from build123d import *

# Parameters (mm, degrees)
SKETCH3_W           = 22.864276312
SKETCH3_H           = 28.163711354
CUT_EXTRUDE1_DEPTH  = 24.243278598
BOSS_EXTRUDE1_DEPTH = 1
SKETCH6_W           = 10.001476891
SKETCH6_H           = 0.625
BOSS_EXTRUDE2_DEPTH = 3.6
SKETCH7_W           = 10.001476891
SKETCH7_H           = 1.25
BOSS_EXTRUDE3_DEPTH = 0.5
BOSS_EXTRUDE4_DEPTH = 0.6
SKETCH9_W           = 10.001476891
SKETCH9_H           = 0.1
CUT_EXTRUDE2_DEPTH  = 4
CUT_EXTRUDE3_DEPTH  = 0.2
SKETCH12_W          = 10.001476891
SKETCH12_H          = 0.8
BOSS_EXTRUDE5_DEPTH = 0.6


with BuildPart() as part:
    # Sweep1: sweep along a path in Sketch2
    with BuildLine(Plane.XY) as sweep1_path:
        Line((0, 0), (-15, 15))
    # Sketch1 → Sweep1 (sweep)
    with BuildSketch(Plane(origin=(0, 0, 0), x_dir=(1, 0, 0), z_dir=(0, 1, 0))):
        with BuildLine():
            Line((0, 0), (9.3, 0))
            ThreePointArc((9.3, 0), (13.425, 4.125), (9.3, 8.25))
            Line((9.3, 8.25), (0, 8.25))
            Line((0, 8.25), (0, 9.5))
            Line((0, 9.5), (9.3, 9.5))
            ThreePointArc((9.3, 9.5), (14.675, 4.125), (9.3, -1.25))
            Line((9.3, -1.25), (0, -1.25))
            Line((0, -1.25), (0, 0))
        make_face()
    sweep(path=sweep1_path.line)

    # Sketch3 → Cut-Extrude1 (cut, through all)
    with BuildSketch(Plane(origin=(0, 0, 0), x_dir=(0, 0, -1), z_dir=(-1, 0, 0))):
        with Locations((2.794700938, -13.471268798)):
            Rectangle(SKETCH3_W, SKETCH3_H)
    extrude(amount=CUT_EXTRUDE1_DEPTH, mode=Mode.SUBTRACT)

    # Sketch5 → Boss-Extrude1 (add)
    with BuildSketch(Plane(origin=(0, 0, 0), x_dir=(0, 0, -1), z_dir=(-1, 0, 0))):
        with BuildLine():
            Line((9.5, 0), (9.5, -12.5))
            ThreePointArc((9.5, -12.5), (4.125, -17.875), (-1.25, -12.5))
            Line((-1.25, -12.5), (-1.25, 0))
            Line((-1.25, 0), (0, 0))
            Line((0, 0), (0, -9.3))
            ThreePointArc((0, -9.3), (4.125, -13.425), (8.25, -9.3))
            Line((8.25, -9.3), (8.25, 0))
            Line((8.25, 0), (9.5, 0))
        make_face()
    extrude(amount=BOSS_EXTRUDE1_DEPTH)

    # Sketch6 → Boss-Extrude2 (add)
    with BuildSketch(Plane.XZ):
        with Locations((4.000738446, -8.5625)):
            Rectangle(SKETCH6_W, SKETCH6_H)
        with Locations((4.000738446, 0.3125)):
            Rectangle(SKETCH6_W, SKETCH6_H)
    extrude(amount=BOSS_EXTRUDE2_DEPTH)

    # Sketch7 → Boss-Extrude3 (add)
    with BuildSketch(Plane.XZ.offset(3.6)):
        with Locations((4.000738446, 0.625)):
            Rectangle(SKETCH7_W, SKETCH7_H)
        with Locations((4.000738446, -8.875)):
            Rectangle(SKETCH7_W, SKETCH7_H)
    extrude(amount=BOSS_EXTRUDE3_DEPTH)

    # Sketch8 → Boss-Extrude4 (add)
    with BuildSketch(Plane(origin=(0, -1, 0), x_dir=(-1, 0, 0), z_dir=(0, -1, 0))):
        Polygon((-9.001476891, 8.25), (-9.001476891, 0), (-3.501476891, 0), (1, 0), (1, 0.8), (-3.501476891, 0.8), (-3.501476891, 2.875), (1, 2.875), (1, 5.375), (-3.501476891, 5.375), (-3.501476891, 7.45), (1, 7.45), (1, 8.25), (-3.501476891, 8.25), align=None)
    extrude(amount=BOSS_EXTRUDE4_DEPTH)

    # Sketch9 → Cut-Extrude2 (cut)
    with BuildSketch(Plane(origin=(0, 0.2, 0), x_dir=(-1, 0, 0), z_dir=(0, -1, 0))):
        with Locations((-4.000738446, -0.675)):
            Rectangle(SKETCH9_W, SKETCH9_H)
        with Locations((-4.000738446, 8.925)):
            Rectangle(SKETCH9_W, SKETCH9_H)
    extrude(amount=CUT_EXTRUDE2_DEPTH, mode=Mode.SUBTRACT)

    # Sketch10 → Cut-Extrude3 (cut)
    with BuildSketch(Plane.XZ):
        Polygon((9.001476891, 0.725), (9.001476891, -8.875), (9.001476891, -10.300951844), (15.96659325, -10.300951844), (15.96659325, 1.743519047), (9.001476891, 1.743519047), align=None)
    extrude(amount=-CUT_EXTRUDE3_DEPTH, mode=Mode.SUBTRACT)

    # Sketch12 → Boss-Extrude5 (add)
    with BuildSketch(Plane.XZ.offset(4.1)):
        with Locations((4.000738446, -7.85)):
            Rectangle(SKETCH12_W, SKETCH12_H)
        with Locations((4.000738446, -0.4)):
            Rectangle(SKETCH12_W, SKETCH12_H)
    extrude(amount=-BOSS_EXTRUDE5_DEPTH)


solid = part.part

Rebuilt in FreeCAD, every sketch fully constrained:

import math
import FreeCAD as App
import Part
import Sketcher

V = App.Vector
Q = App.Units.Quantity

doc = App.newDocument("Part")
params = doc.addObject("Spreadsheet::Sheet", "Params")
for row, (alias, value) in enumerate([
    ("sketch1_width", "9.3 mm"),
    ("sketch4_width", "12.5 mm"),
    ("sketch4_width2", "9.3 mm"),
    ("pad1_length", "1 mm"),
    ("pad2_length", "3.6 mm"),
    ("sketch6_height", "1.25 mm"),
    ("pad3_length", "0.5 mm"),
    ("sketch7_height", "0.8 mm"),
    ("sketch7_height2", "2.5 mm"),
    ("sketch7_height3", "8.25 mm"),
    ("pad4_length", "0.6 mm"),
    ("sketch8_height", "0.1 mm"),
    ("pocket2_length", "4 mm"),
    ("pocket3_length", "0.2 mm"),
    ("sketch10_height", "0.8 mm"),
    ("pad5_length", "0.6 mm"),
], start=1):
    params.set(f"A{row}", alias)
    params.set(f"B{row}", "=" + value)
    params.setAlias(f"B{row}", alias)

body = doc.addObject("PartDesign::Body", "Body")

sketch1 = body.newObject("Sketcher::SketchObject", "Sketch")
sketch1.AttachmentSupport = (doc.getObject("XZ_Plane"), [""])
sketch1.MapMode = "FlatFace"
sketch1.addGeometry(Part.LineSegment(V(9.3, 0, 0), V(0, 0, 0)), False)
sketch1.addGeometry(Part.LineSegment(V(0, 0, 0), V(0, 1.2, 0)), False)
sketch1.addGeometry(Part.LineSegment(V(0, 1.2, 0), V(9.3, 1.2, 0)), False)
sketch1.addGeometry(Part.ArcOfCircle(Part.Circle(V(9.3, -4.1, 0), V(0, 0, 1), 5.4), math.radians(-90), math.radians(90)), False)
sketch1.addGeometry(Part.LineSegment(V(9.3, -9.5, 0), V(0, -9.5, 0)), False)
sketch1.addGeometry(Part.LineSegment(V(0, -9.5, 0), V(0, -8.2, 0)), False)
sketch1.addGeometry(Part.LineSegment(V(0, -8.2, 0), V(9.3, -8.2, 0)), False)
sketch1.addGeometry(Part.ArcOfCircle(Part.Circle(V(9.3, -4.1, 0), V(0, 0, 1), 4.1), math.radians(-90), math.radians(90)), False)
sketch1.addConstraint(Sketcher.Constraint("Coincident", 0, 2, 1, 1))
sketch1.addConstraint(Sketcher.Constraint("Coincident", 1, 2, 2, 1))
sketch1.addConstraint(Sketcher.Constraint("Tangent", 2, 2, 3, 2))
sketch1.addConstraint(Sketcher.Constraint("Tangent", 3, 1, 4, 1))
sketch1.addConstraint(Sketcher.Constraint("Coincident", 4, 2, 5, 1))
sketch1.addConstraint(Sketcher.Constraint("Coincident", 5, 2, 6, 1))
sketch1.addConstraint(Sketcher.Constraint("Tangent", 6, 2, 7, 1))
sketch1.addConstraint(Sketcher.Constraint("Tangent", 7, 2, 0, 1))
sketch1.addConstraint(Sketcher.Constraint("Horizontal", 0))
sketch1.addConstraint(Sketcher.Constraint("Vertical", 1))
sketch1.addConstraint(Sketcher.Constraint("Horizontal", 2))
sketch1.addConstraint(Sketcher.Constraint("Horizontal", 4))
sketch1.addConstraint(Sketcher.Constraint("Vertical", 5))
sketch1.addConstraint(Sketcher.Constraint("Horizontal", 6))
sketch1.addConstraint(Sketcher.Constraint("Coincident", 0, 2, -1, 1))
sketch1.addConstraint(Sketcher.Constraint("Coincident", 7, 3, 3, 3))
sketch1.addConstraint(Sketcher.Constraint("PointOnObject", 4, 2, -2))
sketch1.addConstraint(Sketcher.Constraint("DistanceX", 0, 2, 0, 1, Q("9.3 mm")))
sketch1.addConstraint(Sketcher.Constraint("Radius", 3, Q("5.375 mm")))
sketch1.addConstraint(Sketcher.Constraint("Radius", 7, Q("4.125 mm")))
sketch1.setExpression("Constraints[17]", "Params.sketch1_width")

sketch2 = body.newObject("Sketcher::SketchObject", "Sketch001")
sketch2.Placement = App.Placement(V(0, 0, 0), App.Rotation(V(-0.707106781, 0.707106781, 0), V(0, 0, 0.999999999), V(0.707106781, 0.707106781, 0), "ZXY"))
sketch2.addGeometry(Part.LineSegment(V(0, 0, 0), V(21, 0, 0)), False)
sketch2.addConstraint(Sketcher.Constraint("Horizontal", 0))
sketch2.addConstraint(Sketcher.Constraint("Coincident", 0, 1, -1, 1))
sketch2.addConstraint(Sketcher.Constraint("DistanceX", 0, 1, 0, 2, Q("21.213203 mm")))
doc.recompute()

additivepipe = body.newObject("PartDesign::AdditivePipe", "AdditivePipe")
additivepipe.Profile = sketch1
additivepipe.Spine = (sketch2, ["Edge1"])

sketch3 = body.newObject("Sketcher::SketchObject", "Sketch002")
sketch3.AttachmentSupport = (doc.getObject("YZ_Plane"), [""])
sketch3.MapMode = "FlatFace"
sketch3.addGeometry(Part.LineSegment(V(-1, 9, 0), V(28, 9, 0)), False)
sketch3.addGeometry(Part.LineSegment(V(28, 9, 0), V(28, -14, 0)), False)
sketch3.addGeometry(Part.LineSegment(V(28, -14, 0), V(-1, -14, 0)), False)
sketch3.addGeometry(Part.LineSegment(V(-1, -14, 0), V(-1, 9, 0)), False)
sketch3.addConstraint(Sketcher.Constraint("Coincident", 0, 2, 1, 1))
sketch3.addConstraint(Sketcher.Constraint("Coincident", 1, 2, 2, 1))
sketch3.addConstraint(Sketcher.Constraint("Coincident", 2, 2, 3, 1))
sketch3.addConstraint(Sketcher.Constraint("Coincident", 3, 2, 0, 1))
sketch3.addConstraint(Sketcher.Constraint("Horizontal", 0))
sketch3.addConstraint(Sketcher.Constraint("Vertical", 1))
sketch3.addConstraint(Sketcher.Constraint("Horizontal", 2))
sketch3.addConstraint(Sketcher.Constraint("Vertical", 3))
sketch3.addConstraint(Sketcher.Constraint("DistanceX", 0, 1, 0, 2, Q("28.163711 mm")))
sketch3.addConstraint(Sketcher.Constraint("DistanceY", 1, 2, 1, 1, Q("22.864276 mm")))
sketch3.addConstraint(Sketcher.Constraint("DistanceY", 1, 2, -1, 1, Q("14.226839 mm")))
sketch3.addConstraint(Sketcher.Constraint("DistanceX", -1, 1, 0, 2, Q("27.553124 mm")))
pocket1 = body.newObject("PartDesign::Pocket", "Pocket")
pocket1.Profile = sketch3
pocket1.Type = "ThroughAll"

sketch4 = body.newObject("Sketcher::SketchObject", "Sketch003")
sketch4.AttachmentSupport = (doc.getObject("YZ_Plane"), [""])
sketch4.MapMode = "FlatFace"
sketch4.addGeometry(Part.LineSegment(V(12.5, -9.5, 0), V(0, -9.5, 0)), False)
sketch4.addGeometry(Part.LineSegment(V(0, -9.5, 0), V(0, -8.2, 0)), False)
sketch4.addGeometry(Part.LineSegment(V(0, -8.2, 0), V(9.3, -8.2, 0)), False)
sketch4.addGeometry(Part.ArcOfCircle(Part.Circle(V(9.3, -4.1, 0), V(0, 0, 1), 4.1), math.radians(-90), math.radians(90)), False)
sketch4.addGeometry(Part.LineSegment(V(9.3, 0, 0), V(0, 0, 0)), False)
sketch4.addGeometry(Part.LineSegment(V(0, 0, 0), V(0, 1.2, 0)), False)
sketch4.addGeometry(Part.LineSegment(V(0, 1.2, 0), V(12.5, 1.2, 0)), False)
sketch4.addGeometry(Part.ArcOfCircle(Part.Circle(V(12.5, -4.1, 0), V(0, 0, 1), 5.4), math.radians(-90), math.radians(90)), False)
sketch4.addConstraint(Sketcher.Constraint("Coincident", 0, 2, 1, 1))
sketch4.addConstraint(Sketcher.Constraint("Coincident", 1, 2, 2, 1))
sketch4.addConstraint(Sketcher.Constraint("Tangent", 2, 2, 3, 1))
sketch4.addConstraint(Sketcher.Constraint("Tangent", 3, 2, 4, 1))
sketch4.addConstraint(Sketcher.Constraint("Coincident", 4, 2, 5, 1))
sketch4.addConstraint(Sketcher.Constraint("Coincident", 5, 2, 6, 1))
sketch4.addConstraint(Sketcher.Constraint("Tangent", 6, 2, 7, 2))
sketch4.addConstraint(Sketcher.Constraint("Tangent", 7, 1, 0, 1))
sketch4.addConstraint(Sketcher.Constraint("Horizontal", 0))
sketch4.addConstraint(Sketcher.Constraint("Vertical", 1))
sketch4.addConstraint(Sketcher.Constraint("Horizontal", 2))
sketch4.addConstraint(Sketcher.Constraint("Horizontal", 4))
sketch4.addConstraint(Sketcher.Constraint("Vertical", 5))
sketch4.addConstraint(Sketcher.Constraint("Horizontal", 6))
sketch4.addConstraint(Sketcher.Constraint("Coincident", 4, 2, -1, 1))
sketch4.addConstraint(Sketcher.Constraint("PointOnObject", 0, 2, -2))
sketch4.addConstraint(Sketcher.Constraint("Horizontal", 3, 3, 7, 3))
sketch4.addConstraint(Sketcher.Constraint("DistanceX", 0, 2, 0, 1, Q("12.5 mm")))
sketch4.addConstraint(Sketcher.Constraint("DistanceX", 2, 1, 2, 2, Q("9.3 mm")))
sketch4.addConstraint(Sketcher.Constraint("Radius", 3, Q("4.125 mm")))
sketch4.addConstraint(Sketcher.Constraint("Radius", 7, Q("5.375 mm")))
sketch4.setExpression("Constraints[17]", "Params.sketch4_width")
sketch4.setExpression("Constraints[18]", "Params.sketch4_width2")
pad1 = body.newObject("PartDesign::Pad", "Pad")
pad1.Profile = sketch4
pad1.setExpression("Length", "Params.pad1_length")
pad1.Reversed = True

sketch5 = body.newObject("Sketcher::SketchObject", "Sketch004")
sketch5.AttachmentSupport = (doc.getObject("XZ_Plane"), [""])
sketch5.MapMode = "FlatFace"
sketch5.addGeometry(Part.LineSegment(V(-1, -8.2, 0), V(-1, -8.9, 0)), False)
sketch5.addGeometry(Part.LineSegment(V(-1, -8.9, 0), V(9, -8.9, 0)), False)
sketch5.addGeometry(Part.LineSegment(V(9, -8.9, 0), V(9, -8.2, 0)), False)
sketch5.addGeometry(Part.LineSegment(V(9, -8.2, 0), V(-1, -8.2, 0)), False)
sketch5.addGeometry(Part.LineSegment(V(-1, 0.6, 0), V(-1, 0, 0)), False)
sketch5.addGeometry(Part.LineSegment(V(-1, 0, 0), V(9, 0, 0)), False)
sketch5.addGeometry(Part.LineSegment(V(9, 0, 0), V(9, 0.6, 0)), False)
sketch5.addGeometry(Part.LineSegment(V(9, 0.6, 0), V(-1, 0.6, 0)), False)
sketch5.addConstraint(Sketcher.Constraint("Coincident", 0, 2, 1, 1))
sketch5.addConstraint(Sketcher.Constraint("Coincident", 1, 2, 2, 1))
sketch5.addConstraint(Sketcher.Constraint("Coincident", 2, 2, 3, 1))
sketch5.addConstraint(Sketcher.Constraint("Coincident", 3, 2, 0, 1))
sketch5.addConstraint(Sketcher.Constraint("Coincident", 4, 2, 5, 1))
sketch5.addConstraint(Sketcher.Constraint("Coincident", 5, 2, 6, 1))
sketch5.addConstraint(Sketcher.Constraint("Coincident", 6, 2, 7, 1))
sketch5.addConstraint(Sketcher.Constraint("Coincident", 7, 2, 4, 1))
sketch5.addConstraint(Sketcher.Constraint("Vertical", 0))
sketch5.addConstraint(Sketcher.Constraint("Horizontal", 1))
sketch5.addConstraint(Sketcher.Constraint("Vertical", 2))
sketch5.addConstraint(Sketcher.Constraint("Horizontal", 3))
sketch5.addConstraint(Sketcher.Constraint("Vertical", 4))
sketch5.addConstraint(Sketcher.Constraint("Horizontal", 5))
sketch5.addConstraint(Sketcher.Constraint("Vertical", 6))
sketch5.addConstraint(Sketcher.Constraint("Horizontal", 7))
sketch5.addConstraint(Sketcher.Constraint("PointOnObject", 4, 2, -1))
sketch5.addConstraint(Sketcher.Constraint("Vertical", 3, 2, 4, 2))
sketch5.addConstraint(Sketcher.Constraint("Vertical", 2, 2, 5, 2))
sketch5.addConstraint(Sketcher.Constraint("Equal", 2, 4))
sketch5.addConstraint(Sketcher.Constraint("DistanceX", 0, 2, -1, 1, Q("1 mm")))
sketch5.addConstraint(Sketcher.Constraint("DistanceY", 1, 2, 6, 2, Q("9.5 mm")))
sketch5.addConstraint(Sketcher.Constraint("DistanceY", 0, 2, 0, 1, Q("0.625 mm")))
sketch5.addConstraint(Sketcher.Constraint("DistanceX", 1, 1, 1, 2, Q("10.001477 mm")))
pad2 = body.newObject("PartDesign::Pad", "Pad001")
pad2.Profile = sketch5
pad2.setExpression("Length", "Params.pad2_length")

sketch6 = body.newObject("Sketcher::SketchObject", "Sketch005")
sketch6.AttachmentSupport = (doc.getObject("XZ_Plane"), [""])
sketch6.MapMode = "FlatFace"
sketch6.AttachmentOffset = App.Placement(V(0, 0, 3.6), App.Rotation())
sketch6.addGeometry(Part.LineSegment(V(-1, 1.2, 0), V(-1, 0, 0)), False)
sketch6.addGeometry(Part.LineSegment(V(-1, 0, 0), V(9, 0, 0)), False)
sketch6.addGeometry(Part.LineSegment(V(9, 0, 0), V(9, 1.2, 0)), False)
sketch6.addGeometry(Part.LineSegment(V(9, 1.2, 0), V(-1, 1.2, 0)), False)
sketch6.addGeometry(Part.LineSegment(V(-1, -8.2, 0), V(-1, -9.5, 0)), False)
sketch6.addGeometry(Part.LineSegment(V(-1, -9.5, 0), V(9, -9.5, 0)), False)
sketch6.addGeometry(Part.LineSegment(V(9, -9.5, 0), V(9, -8.2, 0)), False)
sketch6.addGeometry(Part.LineSegment(V(9, -8.2, 0), V(-1, -8.2, 0)), False)
sketch6.addConstraint(Sketcher.Constraint("Coincident", 0, 2, 1, 1))
sketch6.addConstraint(Sketcher.Constraint("Coincident", 1, 2, 2, 1))
sketch6.addConstraint(Sketcher.Constraint("Coincident", 2, 2, 3, 1))
sketch6.addConstraint(Sketcher.Constraint("Coincident", 3, 2, 0, 1))
sketch6.addConstraint(Sketcher.Constraint("Coincident", 4, 2, 5, 1))
sketch6.addConstraint(Sketcher.Constraint("Coincident", 5, 2, 6, 1))
sketch6.addConstraint(Sketcher.Constraint("Coincident", 6, 2, 7, 1))
sketch6.addConstraint(Sketcher.Constraint("Coincident", 7, 2, 4, 1))
sketch6.addConstraint(Sketcher.Constraint("Vertical", 0))
sketch6.addConstraint(Sketcher.Constraint("Horizontal", 1))
sketch6.addConstraint(Sketcher.Constraint("Vertical", 2))
sketch6.addConstraint(Sketcher.Constraint("Horizontal", 3))
sketch6.addConstraint(Sketcher.Constraint("Vertical", 4))
sketch6.addConstraint(Sketcher.Constraint("Horizontal", 5))
sketch6.addConstraint(Sketcher.Constraint("Vertical", 6))
sketch6.addConstraint(Sketcher.Constraint("Horizontal", 7))
sketch6.addConstraint(Sketcher.Constraint("PointOnObject", 0, 2, -1))
sketch6.addConstraint(Sketcher.Constraint("Vertical", 3, 2, 4, 2))
sketch6.addConstraint(Sketcher.Constraint("Vertical", 2, 2, 5, 2))
sketch6.addConstraint(Sketcher.Constraint("Equal", 2, 4))
sketch6.addConstraint(Sketcher.Constraint("DistanceX", 0, 2, -1, 1, Q("1 mm")))
sketch6.addConstraint(Sketcher.Constraint("DistanceY", 0, 2, 0, 1, Q("1.25 mm")))
sketch6.addConstraint(Sketcher.Constraint("DistanceY", 4, 2, -1, 1, Q("9.5 mm")))
sketch6.addConstraint(Sketcher.Constraint("DistanceX", 1, 1, 1, 2, Q("10.001477 mm")))
sketch6.setExpression("Constraints[21]", "Params.sketch6_height")
pad3 = body.newObject("PartDesign::Pad", "Pad002")
pad3.Profile = sketch6
pad3.setExpression("Length", "Params.pad3_length")

sketch7 = body.newObject("Sketcher::SketchObject", "Sketch006")
sketch7.AttachmentSupport = (doc.getObject("XZ_Plane"), [""])
sketch7.MapMode = "FlatFace"
sketch7.AttachmentOffset = App.Placement(V(0, 0, 1), App.Rotation())
sketch7.addGeometry(Part.LineSegment(V(9, -8.2, 0), V(9, 0, 0)), False)
sketch7.addGeometry(Part.LineSegment(V(9, 0, 0), V(-1, 0, 0)), False)
sketch7.addGeometry(Part.LineSegment(V(-1, 0, 0), V(-1, -0.8, 0)), False)
sketch7.addGeometry(Part.LineSegment(V(-1, -0.8, 0), V(3.5, -0.8, 0)), False)
sketch7.addGeometry(Part.LineSegment(V(3.5, -0.8, 0), V(3.5, -2.9, 0)), False)
sketch7.addGeometry(Part.LineSegment(V(3.5, -2.9, 0), V(-1, -2.9, 0)), False)
sketch7.addGeometry(Part.LineSegment(V(-1, -2.9, 0), V(-1, -5.4, 0)), False)
sketch7.addGeometry(Part.LineSegment(V(-1, -5.4, 0), V(3.5, -5.4, 0)), False)
sketch7.addGeometry(Part.LineSegment(V(3.5, -5.4, 0), V(3.5, -7.5, 0)), False)
sketch7.addGeometry(Part.LineSegment(V(3.5, -7.5, 0), V(-1, -7.5, 0)), False)
sketch7.addGeometry(Part.LineSegment(V(-1, -7.5, 0), V(-1, -8.2, 0)), False)
sketch7.addGeometry(Part.LineSegment(V(-1, -8.2, 0), V(9, -8.2, 0)), False)
sketch7.addConstraint(Sketcher.Constraint("Coincident", 0, 2, 1, 1))
sketch7.addConstraint(Sketcher.Constraint("Coincident", 1, 2, 2, 1))
sketch7.addConstraint(Sketcher.Constraint("Coincident", 2, 2, 3, 1))
sketch7.addConstraint(Sketcher.Constraint("Coincident", 3, 2, 4, 1))
sketch7.addConstraint(Sketcher.Constraint("Coincident", 4, 2, 5, 1))
sketch7.addConstraint(Sketcher.Constraint("Coincident", 5, 2, 6, 1))
sketch7.addConstraint(Sketcher.Constraint("Coincident", 6, 2, 7, 1))
sketch7.addConstraint(Sketcher.Constraint("Coincident", 7, 2, 8, 1))
sketch7.addConstraint(Sketcher.Constraint("Coincident", 8, 2, 9, 1))
sketch7.addConstraint(Sketcher.Constraint("Coincident", 9, 2, 10, 1))
sketch7.addConstraint(Sketcher.Constraint("Coincident", 10, 2, 11, 1))
sketch7.addConstraint(Sketcher.Constraint("Coincident", 11, 2, 0, 1))
sketch7.addConstraint(Sketcher.Constraint("Vertical", 0))
sketch7.addConstraint(Sketcher.Constraint("Horizontal", 1))
sketch7.addConstraint(Sketcher.Constraint("Vertical", 2))
sketch7.addConstraint(Sketcher.Constraint("Horizontal", 3))
sketch7.addConstraint(Sketcher.Constraint("Vertical", 4))
sketch7.addConstraint(Sketcher.Constraint("Horizontal", 5))
sketch7.addConstraint(Sketcher.Constraint("Vertical", 6))
sketch7.addConstraint(Sketcher.Constraint("Horizontal", 7))
sketch7.addConstraint(Sketcher.Constraint("Vertical", 8))
sketch7.addConstraint(Sketcher.Constraint("Horizontal", 9))
sketch7.addConstraint(Sketcher.Constraint("Vertical", 10))
sketch7.addConstraint(Sketcher.Constraint("Horizontal", 11))
sketch7.addConstraint(Sketcher.Constraint("PointOnObject", 0, 2, -1))
sketch7.addConstraint(Sketcher.Constraint("Vertical", 2, 2, 5, 2))
sketch7.addConstraint(Sketcher.Constraint("Vertical", 4, 2, 7, 2))
sketch7.addConstraint(Sketcher.Constraint("Vertical", 6, 2, 9, 2))
sketch7.addConstraint(Sketcher.Constraint("Equal", 4, 8))
sketch7.addConstraint(Sketcher.Constraint("Equal", 2, 10))
sketch7.addConstraint(Sketcher.Constraint("DistanceY", 2, 2, 2, 1, Q("0.8 mm")))
sketch7.addConstraint(Sketcher.Constraint("DistanceY", 6, 2, 6, 1, Q("2.5 mm")))
sketch7.addConstraint(Sketcher.Constraint("DistanceX", 1, 2, -1, 1, Q("1 mm")))
sketch7.addConstraint(Sketcher.Constraint("DistanceY", 0, 1, 0, 2, Q("8.25 mm")))
sketch7.addConstraint(Sketcher.Constraint("DistanceX", 3, 2, 0, 2, Q("5.5 mm")))
sketch7.addConstraint(Sketcher.Constraint("DistanceX", 1, 2, 1, 1, Q("10.001477 mm")))
sketch7.setExpression("Constraints[30]", "Params.sketch7_height")
sketch7.setExpression("Constraints[31]", "Params.sketch7_height2")
sketch7.setExpression("Constraints[33]", "Params.sketch7_height3")
pad4 = body.newObject("PartDesign::Pad", "Pad003")
pad4.Profile = sketch7
pad4.setExpression("Length", "Params.pad4_length")

sketch8 = body.newObject("Sketcher::SketchObject", "Sketch007")
sketch8.AttachmentSupport = (doc.getObject("XZ_Plane"), [""])
sketch8.MapMode = "FlatFace"
sketch8.AttachmentOffset = App.Placement(V(0, 0, -0.2), App.Rotation())
sketch8.addGeometry(Part.LineSegment(V(9, 0.62, 0), V(9, 0.72, 0)), False)
sketch8.addGeometry(Part.LineSegment(V(9, 0.72, 0), V(-1, 0.72, 0)), False)
sketch8.addGeometry(Part.LineSegment(V(-1, 0.72, 0), V(-1, 0.62, 0)), False)
sketch8.addGeometry(Part.LineSegment(V(-1, 0.62, 0), V(9, 0.62, 0)), False)
sketch8.addGeometry(Part.LineSegment(V(9, -8.97, 0), V(9, -8.88, 0)), False)
sketch8.addGeometry(Part.LineSegment(V(9, -8.88, 0), V(-1, -8.88, 0)), False)
sketch8.addGeometry(Part.LineSegment(V(-1, -8.88, 0), V(-1, -8.97, 0)), False)
sketch8.addGeometry(Part.LineSegment(V(-1, -8.97, 0), V(9, -8.97, 0)), False)
sketch8.addConstraint(Sketcher.Constraint("Coincident", 0, 2, 1, 1))
sketch8.addConstraint(Sketcher.Constraint("Coincident", 1, 2, 2, 1))
sketch8.addConstraint(Sketcher.Constraint("Coincident", 2, 2, 3, 1))
sketch8.addConstraint(Sketcher.Constraint("Coincident", 3, 2, 0, 1))
sketch8.addConstraint(Sketcher.Constraint("Coincident", 4, 2, 5, 1))
sketch8.addConstraint(Sketcher.Constraint("Coincident", 5, 2, 6, 1))
sketch8.addConstraint(Sketcher.Constraint("Coincident", 6, 2, 7, 1))
sketch8.addConstraint(Sketcher.Constraint("Coincident", 7, 2, 4, 1))
sketch8.addConstraint(Sketcher.Constraint("Vertical", 0))
sketch8.addConstraint(Sketcher.Constraint("Horizontal", 1))
sketch8.addConstraint(Sketcher.Constraint("Vertical", 2))
sketch8.addConstraint(Sketcher.Constraint("Horizontal", 3))
sketch8.addConstraint(Sketcher.Constraint("Vertical", 4))
sketch8.addConstraint(Sketcher.Constraint("Horizontal", 5))
sketch8.addConstraint(Sketcher.Constraint("Vertical", 6))
sketch8.addConstraint(Sketcher.Constraint("Horizontal", 7))
sketch8.addConstraint(Sketcher.Constraint("Vertical", 3, 2, 4, 2))
sketch8.addConstraint(Sketcher.Constraint("Vertical", 2, 2, 5, 2))
sketch8.addConstraint(Sketcher.Constraint("Equal", 2, 4))
sketch8.addConstraint(Sketcher.Constraint("DistanceY", 0, 1, 0, 2, Q("0.1 mm")))
sketch8.addConstraint(Sketcher.Constraint("DistanceX", 1, 2, -1, 1, Q("1 mm")))
sketch8.addConstraint(Sketcher.Constraint("DistanceY", 4, 2, 3, 2, Q("9.5 mm")))
sketch8.addConstraint(Sketcher.Constraint("DistanceY", -1, 1, 0, 2, Q("0.725 mm")))
sketch8.addConstraint(Sketcher.Constraint("DistanceX", 1, 2, 1, 1, Q("10.001477 mm")))
sketch8.setExpression("Constraints[19]", "Params.sketch8_height")
pocket2 = body.newObject("PartDesign::Pocket", "Pocket001")
pocket2.Profile = sketch8
pocket2.setExpression("Length", "Params.pocket2_length")
pocket2.Reversed = True

sketch9 = body.newObject("Sketcher::SketchObject", "Sketch008")
sketch9.AttachmentSupport = (doc.getObject("XZ_Plane"), [""])
sketch9.MapMode = "FlatFace"
sketch9.addGeometry(Part.LineSegment(V(9, -10, 0), V(16, -10, 0)), False)
sketch9.addGeometry(Part.LineSegment(V(16, -10, 0), V(16, 2, 0)), False)
sketch9.addGeometry(Part.LineSegment(V(16, 2, 0), V(9, 2, 0)), False)
sketch9.addGeometry(Part.LineSegment(V(9, 2, 0), V(9, -10, 0)), False)
sketch9.addConstraint(Sketcher.Constraint("Coincident", 0, 2, 1, 1))
sketch9.addConstraint(Sketcher.Constraint("Coincident", 1, 2, 2, 1))
sketch9.addConstraint(Sketcher.Constraint("Coincident", 2, 2, 3, 1))
sketch9.addConstraint(Sketcher.Constraint("Coincident", 3, 2, 0, 1))
sketch9.addConstraint(Sketcher.Constraint("Horizontal", 0))
sketch9.addConstraint(Sketcher.Constraint("Vertical", 1))
sketch9.addConstraint(Sketcher.Constraint("Horizontal", 2))
sketch9.addConstraint(Sketcher.Constraint("Vertical", 3))
sketch9.addConstraint(Sketcher.Constraint("DistanceY", 1, 1, 1, 2, Q("12.044471 mm")))
sketch9.addConstraint(Sketcher.Constraint("DistanceX", 0, 1, 0, 2, Q("6.965116 mm")))
sketch9.addConstraint(Sketcher.Constraint("DistanceY", 0, 2, -1, 1, Q("10.300952 mm")))
sketch9.addConstraint(Sketcher.Constraint("DistanceX", -1, 1, 0, 2, Q("15.966593 mm")))
pocket3 = body.newObject("PartDesign::Pocket", "Pocket002")
pocket3.Profile = sketch9
pocket3.setExpression("Length", "Params.pocket3_length")

sketch10 = body.newObject("Sketcher::SketchObject", "Sketch009")
sketch10.AttachmentSupport = (doc.getObject("XZ_Plane"), [""])
sketch10.MapMode = "FlatFace"
sketch10.AttachmentOffset = App.Placement(V(0, 0, 4.1), App.Rotation())
sketch10.addGeometry(Part.LineSegment(V(-1, -7.5, 0), V(-1, -8.2, 0)), False)
sketch10.addGeometry(Part.LineSegment(V(-1, -8.2, 0), V(9, -8.2, 0)), False)
sketch10.addGeometry(Part.LineSegment(V(9, -8.2, 0), V(9, -7.5, 0)), False)
sketch10.addGeometry(Part.LineSegment(V(9, -7.5, 0), V(-1, -7.5, 0)), False)
sketch10.addGeometry(Part.LineSegment(V(-1, 0, 0), V(-1, -0.8, 0)), False)
sketch10.addGeometry(Part.LineSegment(V(-1, -0.8, 0), V(9, -0.8, 0)), False)
sketch10.addGeometry(Part.LineSegment(V(9, -0.8, 0), V(9, 0, 0)), False)
sketch10.addGeometry(Part.LineSegment(V(9, 0, 0), V(-1, 0, 0)), False)
sketch10.addConstraint(Sketcher.Constraint("Coincident", 0, 2, 1, 1))
sketch10.addConstraint(Sketcher.Constraint("Coincident", 1, 2, 2, 1))
sketch10.addConstraint(Sketcher.Constraint("Coincident", 2, 2, 3, 1))
sketch10.addConstraint(Sketcher.Constraint("Coincident", 3, 2, 0, 1))
sketch10.addConstraint(Sketcher.Constraint("Coincident", 4, 2, 5, 1))
sketch10.addConstraint(Sketcher.Constraint("Coincident", 5, 2, 6, 1))
sketch10.addConstraint(Sketcher.Constraint("Coincident", 6, 2, 7, 1))
sketch10.addConstraint(Sketcher.Constraint("Coincident", 7, 2, 4, 1))
sketch10.addConstraint(Sketcher.Constraint("Vertical", 0))
sketch10.addConstraint(Sketcher.Constraint("Horizontal", 1))
sketch10.addConstraint(Sketcher.Constraint("Vertical", 2))
sketch10.addConstraint(Sketcher.Constraint("Horizontal", 3))
sketch10.addConstraint(Sketcher.Constraint("Vertical", 4))
sketch10.addConstraint(Sketcher.Constraint("Horizontal", 5))
sketch10.addConstraint(Sketcher.Constraint("Vertical", 6))
sketch10.addConstraint(Sketcher.Constraint("Horizontal", 7))
sketch10.addConstraint(Sketcher.Constraint("PointOnObject", 6, 2, -1))
sketch10.addConstraint(Sketcher.Constraint("Vertical", 3, 2, 4, 2))
sketch10.addConstraint(Sketcher.Constraint("Vertical", 2, 2, 5, 2))
sketch10.addConstraint(Sketcher.Constraint("Equal", 2, 4))
sketch10.addConstraint(Sketcher.Constraint("DistanceY", 0, 2, 0, 1, Q("0.8 mm")))
sketch10.addConstraint(Sketcher.Constraint("DistanceX", 0, 2, -1, 1, Q("1 mm")))
sketch10.addConstraint(Sketcher.Constraint("DistanceY", 0, 2, -1, 1, Q("8.25 mm")))
sketch10.addConstraint(Sketcher.Constraint("DistanceX", 1, 1, 1, 2, Q("10.001477 mm")))
sketch10.setExpression("Constraints[20]", "Params.sketch10_height")
pad5 = body.newObject("PartDesign::Pad", "Pad004")
pad5.Profile = sketch10
pad5.setExpression("Length", "Params.pad5_length")
pad5.Reversed = True

doc.recompute()
